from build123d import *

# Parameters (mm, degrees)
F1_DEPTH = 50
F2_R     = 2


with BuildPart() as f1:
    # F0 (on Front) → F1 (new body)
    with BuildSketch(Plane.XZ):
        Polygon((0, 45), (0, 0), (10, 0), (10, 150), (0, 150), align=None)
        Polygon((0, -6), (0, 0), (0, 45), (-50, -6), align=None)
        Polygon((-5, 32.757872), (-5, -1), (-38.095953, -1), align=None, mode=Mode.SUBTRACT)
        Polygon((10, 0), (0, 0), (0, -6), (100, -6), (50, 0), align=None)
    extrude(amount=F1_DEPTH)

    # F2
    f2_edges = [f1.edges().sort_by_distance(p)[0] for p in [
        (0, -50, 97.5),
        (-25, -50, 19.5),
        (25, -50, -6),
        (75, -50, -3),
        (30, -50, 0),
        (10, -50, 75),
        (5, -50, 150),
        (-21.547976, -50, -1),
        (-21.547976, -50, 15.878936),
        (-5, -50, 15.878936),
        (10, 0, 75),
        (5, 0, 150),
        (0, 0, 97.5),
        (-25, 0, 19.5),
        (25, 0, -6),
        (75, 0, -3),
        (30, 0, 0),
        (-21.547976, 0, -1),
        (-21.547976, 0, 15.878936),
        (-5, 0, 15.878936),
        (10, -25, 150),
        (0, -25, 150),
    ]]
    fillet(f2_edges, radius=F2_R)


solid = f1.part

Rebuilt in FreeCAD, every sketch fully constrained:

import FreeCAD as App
import Part
import Sketcher
Q = App.Units.Quantity


def edges_at(feature, points):
    """Names of the edges that pass closest to the given points."""
    edges = feature.Shape.Edges
    near = lambda p: min(range(len(edges)), key=lambda i: edges[i].distToShape(Part.Vertex(*p))[0])
    return sorted({f"Edge{near(p) + 1}" for p in points})

doc = App.newDocument("Part")
params = doc.addObject("Spreadsheet::Sheet", "Params")
for row, (alias, value) in enumerate([
    ("sketch1_width", "10 mm"),
    ("sketch1_width2", "150 mm"),
    ("sketch1_width3", "40 mm"),
    ("sketch1_height", "105 mm"),
    ("pad1_length", "50 mm"),
    ("fillet_radius", "2 mm"),
], start=1):
    params.set(f"A{row}", alias)
    params.set(f"B{row}", "=" + value)
    params.setAlias(f"B{row}", alias)

body = doc.addObject("PartDesign::Body", "Body")

# Sketch on XZ plane
sketch1 = doc.addObject("Sketcher::SketchObject", "Sketch")
body.addObject(sketch1)
sketch1.AttachmentSupport = (doc.XZ_Plane, [""])
sketch1.MapMode = "FlatFace"
sketch1.addGeometry([
    Part.LineSegment(App.Vector(10, 0, 0), App.Vector(10, 150, 0)),  # 0
    Part.LineSegment(App.Vector(10, 150, 0), App.Vector(0, 150, 0)),  # 1
    Part.LineSegment(App.Vector(0, 150, 0), App.Vector(0, 45, 0)),  # 2
    Part.LineSegment(App.Vector(0, 45, 0), App.Vector(-50, -6, 0)),  # 3
    Part.LineSegment(App.Vector(-50, -6, 0), App.Vector(100, -6, 0)),  # 4
    Part.LineSegment(App.Vector(100, -6, 0), App.Vector(50, 0, 0)),  # 5
    Part.LineSegment(App.Vector(50, 0, 0), App.Vector(10, 0, 0)),  # 6
    Part.LineSegment(App.Vector(-38, -1, 0), App.Vector(-5, 33, 0)),  # 7
    Part.LineSegment(App.Vector(-5, 33, 0), App.Vector(-5, -1, 0)),  # 8
    Part.LineSegment(App.Vector(-5, -1, 0), App.Vector(-38, -1, 0)),  # 9
], False)
sketch1.addConstraint([
    Sketcher.Constraint("Coincident", 0, 2, 1, 1),
    Sketcher.Constraint("Coincident", 1, 2, 2, 1),
    Sketcher.Constraint("Coincident", 2, 2, 3, 1),
    Sketcher.Constraint("Coincident", 3, 2, 4, 1),
    Sketcher.Constraint("Coincident", 4, 2, 5, 1),
    Sketcher.Constraint("Coincident", 5, 2, 6, 1),
    Sketcher.Constraint("Coincident", 6, 2, 0, 1),
    Sketcher.Constraint("Coincident", 7, 2, 8, 1),
    Sketcher.Constraint("Coincident", 8, 2, 9, 1),
    Sketcher.Constraint("Coincident", 9, 2, 7, 1),
    Sketcher.Constraint("Vertical", 0),
    Sketcher.Constraint("Horizontal", 1),
    Sketcher.Constraint("Vertical", 2),
    Sketcher.Constraint("Horizontal", 4),
    Sketcher.Constraint("Horizontal", 6),
    Sketcher.Constraint("Vertical", 8),
    Sketcher.Constraint("Horizontal", 9),
    Sketcher.Constraint("PointOnObject", 1, 2, -2),
    Sketcher.Constraint("PointOnObject", 5, 2, -1),
    Sketcher.Constraint("Parallel", 3, 7),
    Sketcher.Constraint("Equal", 4, 0),
    Sketcher.Constraint("DistanceX", 1, 2, 1, 1, Q("10 mm")),
    Sketcher.Constraint("DistanceX", 4, 1, 4, 2, Q("150 mm")),
    Sketcher.Constraint("DistanceX", 6, 2, 6, 1, Q("40 mm")),
    Sketcher.Constraint("DistanceY", 2, 2, 2, 1, Q("105 mm")),
    Sketcher.Constraint("DistanceX", 3, 2, -1, 1, Q("50 mm")),
    Sketcher.Constraint("DistanceY", 3, 2, -1, 1, Q("6 mm")),
    Sketcher.Constraint("DistanceX", 7, 2, -1, 1, Q("5 mm")),
    Sketcher.Constraint("DistanceY", 8, 2, -1, 1, Q("1 mm")),
    Sketcher.Constraint("Distance", 7, Q("47.27511 mm")),
])
sketch1.setExpression("Constraints[21]", "Params.sketch1_width")
sketch1.setExpression("Constraints[22]", "Params.sketch1_width2")
sketch1.setExpression("Constraints[23]", "Params.sketch1_width3")
sketch1.setExpression("Constraints[24]", "Params.sketch1_height")
pad1 = doc.addObject("PartDesign::Pad", "Pad")
body.addObject(pad1)
pad1.Profile = sketch1
pad1.setExpression("Length", "Params.pad1_length")
doc.recompute()

fillet = doc.addObject("PartDesign::Fillet", "Fillet")
body.addObject(fillet)
fillet.Base = (pad1, edges_at(pad1, [
    (0, -50, 97.5),
    (-25, -50, 19.5),
    (25, -50, -6),
    (75, -50, -3),
    (30, -50, 0),
    (10, -50, 75),
    (5, -50, 150),
    (-21.548, -50, -1),
    (-21.548, -50, 15.879),
    (-5, -50, 15.879),
    (10, 0, 75),
    (5, 0, 150),
    (0, 0, 97.5),
    (-25, 0, 19.5),
    (25, 0, -6),
    (75, 0, -3),
    (30, 0, 0),
    (-21.548, 0, -1),
    (-21.548, 0, 15.879),
    (-5, 0, 15.879),
    (10, -25, 150),
    (0, -25, 150),
]))
fillet.setExpression("Radius", "Params.fillet_radius")

doc.recompute()
